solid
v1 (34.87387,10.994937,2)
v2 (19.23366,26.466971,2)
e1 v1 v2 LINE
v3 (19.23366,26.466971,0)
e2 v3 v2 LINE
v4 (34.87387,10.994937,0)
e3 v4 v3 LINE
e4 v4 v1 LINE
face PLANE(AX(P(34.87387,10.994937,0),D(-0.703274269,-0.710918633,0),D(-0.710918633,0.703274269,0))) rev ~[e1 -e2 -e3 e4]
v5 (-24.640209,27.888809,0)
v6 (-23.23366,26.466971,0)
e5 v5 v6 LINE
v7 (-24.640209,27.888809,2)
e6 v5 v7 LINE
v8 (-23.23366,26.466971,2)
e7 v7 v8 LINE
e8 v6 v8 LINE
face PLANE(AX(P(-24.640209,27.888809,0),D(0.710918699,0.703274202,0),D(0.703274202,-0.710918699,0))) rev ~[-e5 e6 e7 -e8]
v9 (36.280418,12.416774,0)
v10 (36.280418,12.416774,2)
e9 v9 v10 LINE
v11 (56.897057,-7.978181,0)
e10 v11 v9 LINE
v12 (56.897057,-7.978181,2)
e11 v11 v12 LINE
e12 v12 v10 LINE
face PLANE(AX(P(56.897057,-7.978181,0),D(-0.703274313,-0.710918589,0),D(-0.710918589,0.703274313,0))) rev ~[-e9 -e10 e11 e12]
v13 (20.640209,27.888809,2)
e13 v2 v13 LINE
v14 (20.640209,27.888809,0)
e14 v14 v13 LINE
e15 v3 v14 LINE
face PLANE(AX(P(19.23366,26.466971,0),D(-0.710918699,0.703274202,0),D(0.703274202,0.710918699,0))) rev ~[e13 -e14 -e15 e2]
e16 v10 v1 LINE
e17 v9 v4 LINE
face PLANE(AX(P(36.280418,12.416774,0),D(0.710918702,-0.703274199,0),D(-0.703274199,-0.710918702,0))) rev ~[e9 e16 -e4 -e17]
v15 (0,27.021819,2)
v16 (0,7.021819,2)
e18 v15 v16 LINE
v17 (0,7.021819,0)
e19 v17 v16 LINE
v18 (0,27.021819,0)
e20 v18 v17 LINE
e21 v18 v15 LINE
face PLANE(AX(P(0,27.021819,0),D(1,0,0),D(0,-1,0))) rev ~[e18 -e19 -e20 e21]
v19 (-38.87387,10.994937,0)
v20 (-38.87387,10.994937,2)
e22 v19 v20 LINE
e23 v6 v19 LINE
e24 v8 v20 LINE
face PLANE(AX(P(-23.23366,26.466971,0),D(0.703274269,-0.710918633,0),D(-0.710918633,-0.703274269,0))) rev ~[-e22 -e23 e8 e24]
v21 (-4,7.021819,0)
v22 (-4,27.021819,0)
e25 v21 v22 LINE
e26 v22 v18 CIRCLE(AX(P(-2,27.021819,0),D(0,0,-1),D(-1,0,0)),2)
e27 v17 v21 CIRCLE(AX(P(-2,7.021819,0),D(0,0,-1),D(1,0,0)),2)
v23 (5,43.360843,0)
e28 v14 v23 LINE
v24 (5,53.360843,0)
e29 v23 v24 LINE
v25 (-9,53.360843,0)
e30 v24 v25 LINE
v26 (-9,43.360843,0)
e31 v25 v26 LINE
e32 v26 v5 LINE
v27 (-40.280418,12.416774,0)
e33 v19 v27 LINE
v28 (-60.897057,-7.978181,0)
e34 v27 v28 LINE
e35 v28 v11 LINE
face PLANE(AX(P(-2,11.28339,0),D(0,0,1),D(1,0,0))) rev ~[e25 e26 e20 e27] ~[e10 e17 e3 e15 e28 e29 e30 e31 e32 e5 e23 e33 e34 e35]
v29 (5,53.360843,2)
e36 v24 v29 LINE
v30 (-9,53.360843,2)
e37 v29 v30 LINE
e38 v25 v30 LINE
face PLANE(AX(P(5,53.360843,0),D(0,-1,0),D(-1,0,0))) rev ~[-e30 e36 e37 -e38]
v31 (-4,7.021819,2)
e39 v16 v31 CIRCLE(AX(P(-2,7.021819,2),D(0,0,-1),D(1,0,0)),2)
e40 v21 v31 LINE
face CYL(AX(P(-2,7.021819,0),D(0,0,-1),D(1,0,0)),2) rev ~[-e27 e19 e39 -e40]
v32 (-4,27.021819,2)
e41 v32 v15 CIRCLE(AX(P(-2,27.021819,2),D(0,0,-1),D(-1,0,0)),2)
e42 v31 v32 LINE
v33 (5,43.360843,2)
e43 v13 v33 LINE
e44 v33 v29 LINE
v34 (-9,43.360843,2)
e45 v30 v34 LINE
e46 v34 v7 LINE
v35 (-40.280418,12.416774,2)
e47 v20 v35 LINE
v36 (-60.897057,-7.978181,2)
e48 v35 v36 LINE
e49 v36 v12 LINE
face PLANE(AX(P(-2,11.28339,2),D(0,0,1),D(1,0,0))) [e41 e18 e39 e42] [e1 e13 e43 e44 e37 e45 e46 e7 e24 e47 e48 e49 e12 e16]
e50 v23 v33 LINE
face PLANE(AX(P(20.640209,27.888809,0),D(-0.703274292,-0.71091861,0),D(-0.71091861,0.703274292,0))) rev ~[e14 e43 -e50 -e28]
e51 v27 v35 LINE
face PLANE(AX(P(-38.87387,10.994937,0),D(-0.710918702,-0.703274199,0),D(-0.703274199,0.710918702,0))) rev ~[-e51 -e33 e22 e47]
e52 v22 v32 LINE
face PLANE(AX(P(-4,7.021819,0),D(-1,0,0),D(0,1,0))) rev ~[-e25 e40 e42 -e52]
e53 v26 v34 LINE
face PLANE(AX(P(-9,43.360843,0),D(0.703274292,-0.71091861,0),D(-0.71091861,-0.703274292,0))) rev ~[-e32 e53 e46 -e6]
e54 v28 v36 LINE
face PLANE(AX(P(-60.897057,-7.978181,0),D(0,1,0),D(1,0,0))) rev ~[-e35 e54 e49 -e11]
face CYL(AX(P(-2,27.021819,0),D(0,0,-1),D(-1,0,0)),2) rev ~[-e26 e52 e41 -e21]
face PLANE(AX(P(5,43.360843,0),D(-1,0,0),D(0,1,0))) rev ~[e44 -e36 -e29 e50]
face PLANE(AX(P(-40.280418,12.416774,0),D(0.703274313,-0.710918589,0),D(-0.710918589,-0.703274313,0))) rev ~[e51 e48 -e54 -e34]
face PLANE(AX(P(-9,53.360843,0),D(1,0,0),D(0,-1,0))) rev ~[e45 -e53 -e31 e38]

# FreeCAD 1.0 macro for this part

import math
import FreeCAD as App
import Part
import Sketcher

V = App.Vector


def add_polygon(sketch, points):
    """Adds a closed chain of lines whose ends are joined by coincident constraints."""
    first, n = sketch.GeometryCount, len(points)
    for a, b in zip(points, points[1:] + points[:1]):
        sketch.addGeometry(Part.LineSegment(App.Vector(*a, 0), App.Vector(*b, 0)), False)
    for i in range(n):
        sketch.addConstraint(Sketcher.Constraint("Coincident", first + i, 2, first + (i + 1) % n, 1))

doc = App.newDocument("Part")
body = doc.addObject("PartDesign::Body", "Body")

sketch1 = doc.addObject("Sketcher::SketchObject", "Sketch")
body.addObject(sketch1)
sketch1.AttachmentSupport = (doc.XY_Plane, [""])
sketch1.MapMode = "FlatFace"
add_polygon(sketch1, [(-24.6, 27.9), (-23.2, 26.5), (-38.9, 11), (-40.3, 12.4), (-60.9, -8), (56.9, -8), (36.3, 12.4), (34.9, 11), (19.2, 26.5), (20.6, 27.9), (5, 43.4), (5, 53.4), (-9, 53.4), (-9, 43.4)])
sketch1.addGeometry(Part.ArcOfCircle(Part.Circle(V(-2, 27, 0), V(0, 0, 1), 2), math.radians(0), math.radians(180)), False)
sketch1.addGeometry(Part.LineSegment(V(0, 27, 0), V(0, 7, 0)), False)
sketch1.addGeometry(Part.ArcOfCircle(Part.Circle(V(-2, 7, 0), V(0, 0, 1), 2), math.radians(180), math.radians(360)), False)
sketch1.addGeometry(Part.LineSegment(V(-4, 7, 0), V(-4, 27, 0)), False)
sketch1.addConstraint([
    Sketcher.Constraint("Tangent", 14, 1, 15, 1),
    Sketcher.Constraint("Tangent", 15, 2, 16, 2),
    Sketcher.Constraint("Tangent", 16, 1, 17, 1),
    Sketcher.Constraint("Tangent", 17, 2, 14, 2),
    Sketcher.Constraint("Horizontal", 4),
    Sketcher.Constraint("Vertical", 10),
    Sketcher.Constraint("Horizontal", 11),
    Sketcher.Constraint("Vertical", 12),
    Sketcher.Constraint("Vertical", 15),
    Sketcher.Constraint("Vertical", 17),
    Sketcher.Constraint("PointOnObject", 14, 1, -2),
    Sketcher.Constraint("Perpendicular", 0, 1),
    Sketcher.Constraint("Perpendicular", 1, 2),
    Sketcher.Constraint("Perpendicular", 2, 3),
    Sketcher.Constraint("Perpendicular", 5, 6),
    Sketcher.Constraint("Perpendicular", 6, 7),
    Sketcher.Constraint("Perpendicular", 7, 8),
    Sketcher.Constraint("Perpendicular", 8, 9),
    Sketcher.Constraint("Parallel", 3, 13),
    Sketcher.Constraint("Horizontal", 2, 2, 5, 2),
    Sketcher.Constraint("Horizontal", 1, 2, 6, 2),
    Sketcher.Constraint("Horizontal", 0, 2, 7, 2),
    Sketcher.Constraint("Horizontal", 9, 2, 12, 2),
    Sketcher.Constraint("Horizontal", 8, 2, 13, 2),
    Sketcher.Constraint("Equal", 0, 2),
    Sketcher.Constraint("Equal", 3, 5),
    Sketcher.Constraint("Equal", 7, 9),
    Sketcher.Constraint("Radius", 14, 2.0),
    Sketcher.Constraint("DistanceX", 11, 2, 11, 1, 14.0),
    Sketcher.Constraint("DistanceY", 10, 1, 10, 2, 10.0),
    Sketcher.Constraint("DistanceY", 15, 2, 15, 1, 20.0),
    Sketcher.Constraint("Distance", 0, 2.000001),
    Sketcher.Constraint("Distance", 1, 22.0),
    Sketcher.Constraint("Distance", 3, 29.0),
    Sketcher.Constraint("DistanceX", -1, 1, 9, 2, 5.0),
    Sketcher.Constraint("DistanceY", 3, 2, 16, 3, 15.0),
    Sketcher.Constraint("DistanceX", 4, 1, 4, 2, 117.794114),
    Sketcher.Constraint("DistanceY", -1, 1, 14, 3, 27.021819),
])
pad1 = doc.addObject("PartDesign::Pad", "Pad")
body.addObject(pad1)
pad1.Profile = sketch1
pad1.Length = 2

doc.recompute()
